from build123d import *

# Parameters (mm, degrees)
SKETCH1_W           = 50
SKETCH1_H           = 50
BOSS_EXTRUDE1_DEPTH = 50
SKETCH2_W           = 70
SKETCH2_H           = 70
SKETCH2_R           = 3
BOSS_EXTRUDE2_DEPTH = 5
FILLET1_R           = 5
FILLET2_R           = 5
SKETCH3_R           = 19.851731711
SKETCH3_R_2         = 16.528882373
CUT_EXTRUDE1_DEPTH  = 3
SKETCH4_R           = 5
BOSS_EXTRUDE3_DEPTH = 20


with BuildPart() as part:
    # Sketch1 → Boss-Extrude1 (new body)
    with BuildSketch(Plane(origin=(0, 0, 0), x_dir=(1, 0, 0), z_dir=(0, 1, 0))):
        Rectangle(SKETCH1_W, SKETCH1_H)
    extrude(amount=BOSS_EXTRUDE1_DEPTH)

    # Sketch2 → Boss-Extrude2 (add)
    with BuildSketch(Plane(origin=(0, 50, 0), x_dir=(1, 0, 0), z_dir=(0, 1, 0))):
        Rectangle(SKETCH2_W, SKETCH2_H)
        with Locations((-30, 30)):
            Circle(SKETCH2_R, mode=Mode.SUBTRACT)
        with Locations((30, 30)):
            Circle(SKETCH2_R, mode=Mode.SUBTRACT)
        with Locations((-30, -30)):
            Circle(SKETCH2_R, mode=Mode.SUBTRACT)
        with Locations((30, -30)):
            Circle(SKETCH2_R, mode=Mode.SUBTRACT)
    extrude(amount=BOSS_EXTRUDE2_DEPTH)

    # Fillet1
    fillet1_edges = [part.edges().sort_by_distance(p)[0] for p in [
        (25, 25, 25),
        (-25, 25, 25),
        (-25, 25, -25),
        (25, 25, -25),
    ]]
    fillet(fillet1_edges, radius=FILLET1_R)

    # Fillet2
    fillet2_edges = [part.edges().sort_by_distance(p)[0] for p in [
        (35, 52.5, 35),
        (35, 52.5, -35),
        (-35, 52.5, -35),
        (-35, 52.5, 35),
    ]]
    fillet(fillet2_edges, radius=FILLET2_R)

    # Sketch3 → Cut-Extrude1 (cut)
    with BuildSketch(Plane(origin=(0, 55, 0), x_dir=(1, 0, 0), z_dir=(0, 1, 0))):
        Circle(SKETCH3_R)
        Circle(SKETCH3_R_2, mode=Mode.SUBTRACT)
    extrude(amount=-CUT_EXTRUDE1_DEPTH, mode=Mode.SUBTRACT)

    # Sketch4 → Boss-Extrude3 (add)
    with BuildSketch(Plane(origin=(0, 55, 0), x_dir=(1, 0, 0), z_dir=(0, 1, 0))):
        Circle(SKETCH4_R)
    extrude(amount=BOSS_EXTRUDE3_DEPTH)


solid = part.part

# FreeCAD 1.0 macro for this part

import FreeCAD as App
import Part
import Sketcher

V = App.Vector


def edges_at(feature, points):
    """Names of the edges that pass closest to the given points."""
    edges = feature.Shape.Edges
    near = lambda p: min(range(len(edges)), key=lambda i: edges[i].distToShape(Part.Vertex(*p))[0])
    return sorted({f"Edge{near(p) + 1}" for p in points})

doc = App.newDocument("Part")
body = doc.addObject("PartDesign::Body", "Body")

sketch1 = body.newObject("Sketcher::SketchObject", "Sketch")
sketch1.AttachmentSupport = (doc.getObject("XZ_Plane"), [""])
sketch1.MapMode = "FlatFace"
sketch1.addGeometry([
    Part.LineSegment(V(-25, -25, 0), V(-25, 25, 0)),
    Part.LineSegment(V(-25, 25, 0), V(25, 25, 0)),
    Part.LineSegment(V(25, 25, 0), V(25, -25, 0)),
    Part.LineSegment(V(25, -25, 0), V(-25, -25, 0)),
], False)
sketch1.addConstraint([
    Sketcher.Constraint("Coincident", 0, 2, 1, 1),
    Sketcher.Constraint("Coincident", 1, 2, 2, 1),
    Sketcher.Constraint("Coincident", 2, 2, 3, 1),
    Sketcher.Constraint("Coincident", 3, 2, 0, 1),
    Sketcher.Constraint("Vertical", 0),
    Sketcher.Constraint("Horizontal", 1),
    Sketcher.Constraint("Vertical", 2),
    Sketcher.Constraint("Horizontal", 3),
    Sketcher.Constraint("Symmetric", 0, 2, 2, 2, -1, 1),
    Sketcher.Constraint("Equal", 3, 0),
    Sketcher.Constraint("DistanceX", 1, 1, 1, 2, 50.0),
])
pad1 = body.newObject("PartDesign::Pad", "Pad")
pad1.Profile = sketch1
pad1.Length = 50
pad1.Reversed = True

sketch2 = body.newObject("Sketcher::SketchObject", "Sketch001")
sketch2.AttachmentSupport = (doc.getObject("XZ_Plane"), [""])
sketch2.MapMode = "FlatFace"
sketch2.AttachmentOffset = App.Placement(V(0, 0, -50), App.Rotation())
sketch2.addGeometry([
    Part.LineSegment(V(-35, -35, 0), V(-35, 35, 0)),
    Part.LineSegment(V(-35, 35, 0), V(35, 35, 0)),
    Part.LineSegment(V(35, 35, 0), V(35, -35, 0)),
    Part.LineSegment(V(35, -35, 0), V(-35, -35, 0)),
    Part.Circle(V(-30, 30, 0), V(0, 0, 1), 3),
    Part.Circle(V(30, 30, 0), V(0, 0, 1), 3),
    Part.Circle(V(-30, -30, 0), V(0, 0, 1), 3),
    Part.Circle(V(30, -30, 0), V(0, 0, 1), 3),
], False)
sketch2.addConstraint([
    Sketcher.Constraint("Coincident", 0, 2, 1, 1),
    Sketcher.Constraint("Coincident", 1, 2, 2, 1),
    Sketcher.Constraint("Coincident", 2, 2, 3, 1),
    Sketcher.Constraint("Coincident", 3, 2, 0, 1),
    Sketcher.Constraint("Vertical", 0),
    Sketcher.Constraint("Horizontal", 1),
    Sketcher.Constraint("Vertical", 2),
    Sketcher.Constraint("Horizontal", 3),
    Sketcher.Constraint("Equal", 4, 5),
    Sketcher.Constraint("Equal", 5, 6),
    Sketcher.Constraint("Equal", 6, 7),
    Sketcher.Constraint("Symmetric", 5, 3, 6, 3, -1, 1),
    Sketcher.Constraint("Symmetric", 4, 3, 7, 3, -1, 1),
    Sketcher.Constraint("Symmetric", 0, 2, 2, 2, -1, 1),
    Sketcher.Constraint("Symmetric", 4, 3, 5, 3, -2),
    Sketcher.Constraint("Equal", 3, 0),
    Sketcher.Constraint("Diameter", 4, 6.0),
    Sketcher.Constraint("DistanceX", 1, 1, 1, 2, 70.0),
    Sketcher.Constraint("DistanceX", 4, 3, -1, 1, 30.0),
    Sketcher.Constraint("DistanceY", -1, 1, 4, 3, 30.0),
])
pad2 = body.newObject("PartDesign::Pad", "Pad001")
pad2.Profile = sketch2
pad2.Length = 5
pad2.Reversed = True
doc.recompute()

fillet = body.newObject("PartDesign::Fillet", "Fillet")
fillet.Base = (pad2, edges_at(pad2, [
    (25, 25, 25),
    (-25, 25, 25),
    (-25, 25, -25),
    (25, 25, -25),
]))
fillet.Radius = 5
doc.recompute()

fillet2 = body.newObject("PartDesign::Fillet", "Fillet001")
fillet2.Base = (fillet, edges_at(fillet, [
    (35, 52.5, 35),
    (35, 52.5, -35),
    (-35, 52.5, -35),
    (-35, 52.5, 35),
]))
fillet2.Radius = 5

sketch3 = body.newObject("Sketcher::SketchObject", "Sketch002")
sketch3.AttachmentSupport = (doc.getObject("XZ_Plane"), [""])
sketch3.MapMode = "FlatFace"
sketch3.AttachmentOffset = App.Placement(V(0, 0, -55), App.Rotation())
sketch3.addGeometry([
    Part.Circle(V(0, 0, 0), V(0, 0, 1), 20),
    Part.Circle(V(0, 0, 0), V(0, 0, 1), 17),
], False)
sketch3.addConstraint([
    Sketcher.Constraint("Coincident", 0, 3, -1, 1),
    Sketcher.Constraint("Coincident", 1, 3, -1, 1),
    Sketcher.Constraint("Diameter", 0, 39.703463),
    Sketcher.Constraint("Diameter", 1, 33.057765),
])
pocket1 = body.newObject("PartDesign::Pocket", "Pocket")
pocket1.Profile = sketch3
pocket1.Length = 3
pocket1.Reversed = True

sketch4 = body.newObject("Sketcher::SketchObject", "Sketch003")
sketch4.AttachmentSupport = (doc.getObject("XZ_Plane"), [""])
sketch4.MapMode = "FlatFace"
sketch4.AttachmentOffset = App.Placement(V(0, 0, -55), App.Rotation())
sketch4.addGeometry(Part.Circle(V(0, 0, 0), V(0, 0, 1), 5), False)
sketch4.addConstraint([
    Sketcher.Constraint("Coincident", 0, 3, -1, 1),
    Sketcher.Constraint("Diameter", 0, 10.0),
])
pad3 = body.newObject("PartDesign::Pad", "Pad002")
pad3.Profile = sketch4
pad3.Length = 20
pad3.Reversed = True

doc.recompute()
